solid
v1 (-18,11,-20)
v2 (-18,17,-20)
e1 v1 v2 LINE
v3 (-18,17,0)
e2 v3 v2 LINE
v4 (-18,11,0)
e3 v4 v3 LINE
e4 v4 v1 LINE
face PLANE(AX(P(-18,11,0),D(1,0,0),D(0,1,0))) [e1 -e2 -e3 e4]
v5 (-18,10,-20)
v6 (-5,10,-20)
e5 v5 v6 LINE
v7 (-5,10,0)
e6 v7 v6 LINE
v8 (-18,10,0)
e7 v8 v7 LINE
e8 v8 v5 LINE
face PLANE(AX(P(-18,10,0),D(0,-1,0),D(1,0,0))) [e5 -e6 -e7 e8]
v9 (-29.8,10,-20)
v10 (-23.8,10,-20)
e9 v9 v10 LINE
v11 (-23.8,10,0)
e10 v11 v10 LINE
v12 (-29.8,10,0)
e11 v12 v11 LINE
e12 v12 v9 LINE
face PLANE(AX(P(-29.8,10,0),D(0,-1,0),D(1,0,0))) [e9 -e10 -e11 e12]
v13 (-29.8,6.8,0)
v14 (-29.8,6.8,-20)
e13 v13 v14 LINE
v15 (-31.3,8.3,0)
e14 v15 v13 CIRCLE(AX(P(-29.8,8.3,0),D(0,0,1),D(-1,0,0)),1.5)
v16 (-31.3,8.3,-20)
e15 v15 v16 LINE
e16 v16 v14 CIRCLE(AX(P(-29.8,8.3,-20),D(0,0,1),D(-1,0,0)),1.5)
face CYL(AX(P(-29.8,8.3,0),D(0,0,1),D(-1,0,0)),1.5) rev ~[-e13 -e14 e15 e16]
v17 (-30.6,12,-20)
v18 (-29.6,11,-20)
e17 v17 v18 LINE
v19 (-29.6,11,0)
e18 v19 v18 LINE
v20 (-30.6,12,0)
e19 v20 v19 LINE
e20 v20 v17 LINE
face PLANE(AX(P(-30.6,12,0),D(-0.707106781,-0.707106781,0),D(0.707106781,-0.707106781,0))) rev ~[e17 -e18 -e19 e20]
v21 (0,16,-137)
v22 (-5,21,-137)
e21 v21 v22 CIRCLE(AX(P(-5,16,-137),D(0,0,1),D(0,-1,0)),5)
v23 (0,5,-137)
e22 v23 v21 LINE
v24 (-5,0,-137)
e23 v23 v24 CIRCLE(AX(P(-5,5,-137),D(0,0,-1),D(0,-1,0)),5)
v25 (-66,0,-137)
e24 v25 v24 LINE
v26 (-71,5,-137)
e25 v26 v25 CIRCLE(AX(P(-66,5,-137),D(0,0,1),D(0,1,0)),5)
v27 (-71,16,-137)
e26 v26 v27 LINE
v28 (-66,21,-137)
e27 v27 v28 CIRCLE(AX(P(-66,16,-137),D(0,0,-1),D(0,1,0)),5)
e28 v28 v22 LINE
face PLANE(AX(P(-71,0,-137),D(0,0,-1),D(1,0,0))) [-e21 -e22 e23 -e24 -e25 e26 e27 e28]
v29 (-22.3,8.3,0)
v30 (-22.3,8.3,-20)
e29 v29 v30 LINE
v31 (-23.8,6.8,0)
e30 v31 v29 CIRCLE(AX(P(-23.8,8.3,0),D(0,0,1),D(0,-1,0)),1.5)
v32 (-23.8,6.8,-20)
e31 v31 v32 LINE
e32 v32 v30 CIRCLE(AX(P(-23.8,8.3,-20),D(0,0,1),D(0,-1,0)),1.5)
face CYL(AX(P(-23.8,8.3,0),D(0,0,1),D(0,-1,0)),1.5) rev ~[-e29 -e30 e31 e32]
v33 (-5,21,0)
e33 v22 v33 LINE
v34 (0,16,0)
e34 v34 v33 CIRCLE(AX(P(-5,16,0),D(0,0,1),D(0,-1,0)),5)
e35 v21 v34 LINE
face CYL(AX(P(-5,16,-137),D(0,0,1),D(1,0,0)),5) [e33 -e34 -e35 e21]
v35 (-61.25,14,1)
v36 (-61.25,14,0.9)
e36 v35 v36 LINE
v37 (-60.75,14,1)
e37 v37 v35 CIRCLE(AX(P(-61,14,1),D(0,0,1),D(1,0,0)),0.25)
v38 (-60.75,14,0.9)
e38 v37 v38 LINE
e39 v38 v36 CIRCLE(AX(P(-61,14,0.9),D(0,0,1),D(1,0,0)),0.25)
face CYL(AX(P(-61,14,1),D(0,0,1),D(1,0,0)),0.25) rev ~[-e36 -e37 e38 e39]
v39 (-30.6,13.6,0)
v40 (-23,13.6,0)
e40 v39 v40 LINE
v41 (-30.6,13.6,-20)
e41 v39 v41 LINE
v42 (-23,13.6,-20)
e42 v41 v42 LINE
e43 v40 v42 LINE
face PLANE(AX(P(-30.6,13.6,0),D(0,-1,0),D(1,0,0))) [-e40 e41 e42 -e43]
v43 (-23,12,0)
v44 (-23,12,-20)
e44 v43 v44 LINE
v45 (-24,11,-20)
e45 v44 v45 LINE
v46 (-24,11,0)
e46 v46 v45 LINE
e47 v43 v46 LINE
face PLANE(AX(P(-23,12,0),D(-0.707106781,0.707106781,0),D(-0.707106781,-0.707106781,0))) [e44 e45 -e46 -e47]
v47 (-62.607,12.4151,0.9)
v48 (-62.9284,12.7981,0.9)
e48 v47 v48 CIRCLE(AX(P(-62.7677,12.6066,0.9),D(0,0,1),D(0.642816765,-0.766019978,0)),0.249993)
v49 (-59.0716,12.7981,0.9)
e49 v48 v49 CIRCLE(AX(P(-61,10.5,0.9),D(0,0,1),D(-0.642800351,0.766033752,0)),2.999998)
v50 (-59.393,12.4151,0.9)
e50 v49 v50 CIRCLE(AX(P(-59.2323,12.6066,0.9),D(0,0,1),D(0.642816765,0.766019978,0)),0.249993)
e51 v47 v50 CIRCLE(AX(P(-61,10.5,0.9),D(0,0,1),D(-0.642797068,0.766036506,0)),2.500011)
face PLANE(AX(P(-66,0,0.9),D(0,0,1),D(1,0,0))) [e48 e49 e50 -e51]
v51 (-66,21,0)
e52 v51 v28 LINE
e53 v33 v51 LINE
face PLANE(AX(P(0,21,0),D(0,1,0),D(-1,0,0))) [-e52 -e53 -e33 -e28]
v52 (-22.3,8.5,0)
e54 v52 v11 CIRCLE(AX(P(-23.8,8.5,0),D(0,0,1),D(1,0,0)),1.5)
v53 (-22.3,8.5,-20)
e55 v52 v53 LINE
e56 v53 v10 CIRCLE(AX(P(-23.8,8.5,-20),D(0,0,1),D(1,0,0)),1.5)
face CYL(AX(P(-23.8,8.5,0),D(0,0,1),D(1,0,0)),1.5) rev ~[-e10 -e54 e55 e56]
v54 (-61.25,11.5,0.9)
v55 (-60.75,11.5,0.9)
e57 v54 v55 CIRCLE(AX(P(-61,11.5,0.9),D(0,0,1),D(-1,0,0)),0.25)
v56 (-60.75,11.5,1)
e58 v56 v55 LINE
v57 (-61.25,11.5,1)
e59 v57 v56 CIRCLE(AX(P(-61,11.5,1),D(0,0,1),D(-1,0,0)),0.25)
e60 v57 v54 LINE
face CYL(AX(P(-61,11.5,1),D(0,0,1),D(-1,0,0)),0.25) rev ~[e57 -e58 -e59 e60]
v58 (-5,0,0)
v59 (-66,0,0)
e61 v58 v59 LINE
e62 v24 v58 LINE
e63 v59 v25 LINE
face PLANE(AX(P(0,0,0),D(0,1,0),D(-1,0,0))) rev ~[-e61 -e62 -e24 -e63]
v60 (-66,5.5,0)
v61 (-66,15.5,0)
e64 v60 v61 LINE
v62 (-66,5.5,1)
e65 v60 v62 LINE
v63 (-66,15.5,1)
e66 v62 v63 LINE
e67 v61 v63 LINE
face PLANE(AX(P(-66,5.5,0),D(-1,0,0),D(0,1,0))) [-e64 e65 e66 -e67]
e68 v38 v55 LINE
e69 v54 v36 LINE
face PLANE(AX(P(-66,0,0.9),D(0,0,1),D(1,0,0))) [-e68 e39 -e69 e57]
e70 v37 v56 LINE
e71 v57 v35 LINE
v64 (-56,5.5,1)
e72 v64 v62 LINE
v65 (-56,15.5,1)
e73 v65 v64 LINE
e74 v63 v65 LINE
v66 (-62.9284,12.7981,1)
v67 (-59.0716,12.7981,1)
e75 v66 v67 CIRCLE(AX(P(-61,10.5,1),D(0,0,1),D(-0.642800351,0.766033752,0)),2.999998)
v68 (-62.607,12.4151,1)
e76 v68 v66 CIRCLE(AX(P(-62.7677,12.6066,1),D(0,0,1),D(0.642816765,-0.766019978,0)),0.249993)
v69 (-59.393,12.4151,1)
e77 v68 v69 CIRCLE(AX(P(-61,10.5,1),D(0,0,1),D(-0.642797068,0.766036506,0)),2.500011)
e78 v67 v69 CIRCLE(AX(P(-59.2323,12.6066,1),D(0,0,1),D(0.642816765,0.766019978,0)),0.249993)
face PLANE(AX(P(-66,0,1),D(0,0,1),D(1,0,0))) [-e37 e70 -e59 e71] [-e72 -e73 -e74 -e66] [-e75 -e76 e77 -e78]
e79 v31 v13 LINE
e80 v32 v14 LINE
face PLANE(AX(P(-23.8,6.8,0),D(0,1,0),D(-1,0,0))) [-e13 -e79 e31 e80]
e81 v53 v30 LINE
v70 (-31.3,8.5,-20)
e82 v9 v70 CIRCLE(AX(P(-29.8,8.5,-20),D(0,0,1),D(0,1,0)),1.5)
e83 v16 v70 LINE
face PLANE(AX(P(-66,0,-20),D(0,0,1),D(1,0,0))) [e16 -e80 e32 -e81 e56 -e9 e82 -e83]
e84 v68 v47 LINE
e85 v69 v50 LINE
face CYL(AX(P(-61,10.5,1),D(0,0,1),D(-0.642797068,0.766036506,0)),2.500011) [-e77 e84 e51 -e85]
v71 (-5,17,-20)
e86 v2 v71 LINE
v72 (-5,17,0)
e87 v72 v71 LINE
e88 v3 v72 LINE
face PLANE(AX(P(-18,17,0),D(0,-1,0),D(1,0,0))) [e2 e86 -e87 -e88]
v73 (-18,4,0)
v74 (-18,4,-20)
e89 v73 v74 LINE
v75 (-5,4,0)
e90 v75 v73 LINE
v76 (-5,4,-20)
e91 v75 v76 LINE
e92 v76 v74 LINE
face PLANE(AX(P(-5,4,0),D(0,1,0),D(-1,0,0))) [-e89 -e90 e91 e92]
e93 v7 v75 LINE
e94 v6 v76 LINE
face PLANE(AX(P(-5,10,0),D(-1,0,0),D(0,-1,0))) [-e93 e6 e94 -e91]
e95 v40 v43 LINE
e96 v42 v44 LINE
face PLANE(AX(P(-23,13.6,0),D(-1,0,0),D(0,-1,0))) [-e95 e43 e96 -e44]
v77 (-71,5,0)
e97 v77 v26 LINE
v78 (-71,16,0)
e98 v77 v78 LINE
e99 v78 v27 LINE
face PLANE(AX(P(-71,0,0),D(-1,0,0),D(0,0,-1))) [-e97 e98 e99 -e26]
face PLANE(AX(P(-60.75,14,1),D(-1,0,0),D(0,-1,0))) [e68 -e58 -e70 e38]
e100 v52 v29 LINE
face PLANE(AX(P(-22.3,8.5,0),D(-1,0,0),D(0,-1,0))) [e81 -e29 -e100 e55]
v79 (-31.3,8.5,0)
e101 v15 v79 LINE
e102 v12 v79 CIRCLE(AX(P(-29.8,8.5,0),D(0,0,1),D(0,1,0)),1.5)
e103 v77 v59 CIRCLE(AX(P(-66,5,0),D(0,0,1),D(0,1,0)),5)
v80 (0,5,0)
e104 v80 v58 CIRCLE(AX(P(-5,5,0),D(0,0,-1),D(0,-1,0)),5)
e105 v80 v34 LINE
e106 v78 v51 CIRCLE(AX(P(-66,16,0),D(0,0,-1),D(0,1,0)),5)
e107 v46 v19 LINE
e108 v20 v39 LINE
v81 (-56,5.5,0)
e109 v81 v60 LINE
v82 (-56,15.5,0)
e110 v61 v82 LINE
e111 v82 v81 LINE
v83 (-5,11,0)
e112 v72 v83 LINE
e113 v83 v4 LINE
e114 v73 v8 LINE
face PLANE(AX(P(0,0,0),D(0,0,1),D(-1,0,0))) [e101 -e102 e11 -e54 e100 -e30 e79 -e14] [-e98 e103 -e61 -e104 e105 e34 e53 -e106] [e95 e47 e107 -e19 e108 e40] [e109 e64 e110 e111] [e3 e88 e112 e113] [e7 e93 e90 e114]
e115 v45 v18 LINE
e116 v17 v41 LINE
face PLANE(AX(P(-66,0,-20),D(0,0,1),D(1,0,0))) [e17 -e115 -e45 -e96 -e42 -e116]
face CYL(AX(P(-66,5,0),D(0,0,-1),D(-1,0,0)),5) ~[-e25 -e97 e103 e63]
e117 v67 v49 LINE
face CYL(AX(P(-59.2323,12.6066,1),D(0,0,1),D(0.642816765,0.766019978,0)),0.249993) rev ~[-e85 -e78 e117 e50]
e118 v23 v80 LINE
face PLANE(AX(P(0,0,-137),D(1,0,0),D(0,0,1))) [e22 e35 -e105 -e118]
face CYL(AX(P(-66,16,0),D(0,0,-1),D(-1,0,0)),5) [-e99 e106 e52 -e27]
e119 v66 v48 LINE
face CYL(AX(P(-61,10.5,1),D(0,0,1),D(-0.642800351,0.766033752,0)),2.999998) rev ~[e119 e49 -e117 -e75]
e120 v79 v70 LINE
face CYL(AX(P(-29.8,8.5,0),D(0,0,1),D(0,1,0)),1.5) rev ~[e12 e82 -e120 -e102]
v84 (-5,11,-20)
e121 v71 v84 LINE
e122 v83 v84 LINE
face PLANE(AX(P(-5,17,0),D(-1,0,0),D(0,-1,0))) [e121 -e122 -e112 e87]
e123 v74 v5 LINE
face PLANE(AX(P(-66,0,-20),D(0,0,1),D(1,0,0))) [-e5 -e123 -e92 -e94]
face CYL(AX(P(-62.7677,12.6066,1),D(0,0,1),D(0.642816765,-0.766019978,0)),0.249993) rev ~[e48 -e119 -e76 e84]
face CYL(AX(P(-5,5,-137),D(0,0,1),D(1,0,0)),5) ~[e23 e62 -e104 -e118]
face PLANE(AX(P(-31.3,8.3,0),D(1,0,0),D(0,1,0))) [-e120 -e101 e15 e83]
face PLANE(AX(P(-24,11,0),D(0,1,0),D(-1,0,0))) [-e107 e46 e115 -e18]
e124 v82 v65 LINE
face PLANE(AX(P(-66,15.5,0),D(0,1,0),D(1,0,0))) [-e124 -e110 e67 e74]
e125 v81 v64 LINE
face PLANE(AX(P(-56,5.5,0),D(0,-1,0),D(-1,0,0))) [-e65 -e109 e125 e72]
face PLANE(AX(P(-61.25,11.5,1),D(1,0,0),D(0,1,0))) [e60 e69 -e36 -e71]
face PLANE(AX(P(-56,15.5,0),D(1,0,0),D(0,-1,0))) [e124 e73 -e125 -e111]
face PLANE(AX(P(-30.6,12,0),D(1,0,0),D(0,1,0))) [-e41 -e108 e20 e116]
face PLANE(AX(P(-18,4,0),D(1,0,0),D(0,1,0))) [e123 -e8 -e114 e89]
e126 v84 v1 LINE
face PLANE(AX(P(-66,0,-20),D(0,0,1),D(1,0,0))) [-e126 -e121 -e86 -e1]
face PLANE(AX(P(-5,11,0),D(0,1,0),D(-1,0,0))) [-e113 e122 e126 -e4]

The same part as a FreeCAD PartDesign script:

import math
import FreeCAD as App
import Part
import Sketcher
Q = App.Units.Quantity


def edges_at(feature, points):
    """Names of the edges that pass closest to the given points."""
    edges = feature.Shape.Edges
    near = lambda p: min(range(len(edges)), key=lambda i: edges[i].distToShape(Part.Vertex(*p))[0])
    return sorted({f"Edge{near(p) + 1}" for p in points})


def add_polygon(sketch, points):
    """Adds a closed chain of lines whose ends are joined by coincident constraints."""
    first, n = sketch.GeometryCount, len(points)
    for a, b in zip(points, points[1:] + points[:1]):
        sketch.addGeometry(Part.LineSegment(App.Vector(*a, 0), App.Vector(*b, 0)), False)
    for i in range(n):
        sketch.addConstraint(Sketcher.Constraint("Coincident", first + i, 2, first + (i + 1) % n, 1))

doc = App.newDocument("Part")
body = doc.addObject("PartDesign::Body", "Body")

sketch1 = body.newObject("Sketcher::SketchObject", "Sketch")
sketch1.AttachmentSupport = (doc.getObject("XZ_Plane"), [""])
sketch1.MapMode = "FlatFace"
add_polygon(sketch1, [(-71, 0), (0, 0), (0, -137), (-71, -137)])
sketch1.addConstraint([
    Sketcher.Constraint("Horizontal", 0),
    Sketcher.Constraint("Vertical", 1),
    Sketcher.Constraint("Horizontal", 2),
    Sketcher.Constraint("Vertical", 3),
    Sketcher.Constraint("Coincident", 0, 2, -1, 1),
    Sketcher.Constraint("DistanceX", 0, 1, 0, 2, Q("71 mm")),
    Sketcher.Constraint("DistanceY", 1, 2, 1, 1, Q("137 mm")),
])
pad1 = body.newObject("PartDesign::Pad", "Pad")
pad1.Profile = sketch1
pad1.Length = 21
pad1.Reversed = True
doc.recompute()

fillet = body.newObject("PartDesign::Fillet", "Fillet")
fillet.Base = (pad1, edges_at(pad1, [
    (0, 21, -68.5),
    (0, 0, -68.5),
    (-71, 21, -68.5),
    (-71, 0, -68.5),
]))
fillet.Radius = 5

sketch2 = body.newObject("Sketcher::SketchObject", "Sketch001")
sketch2.AttachmentSupport = (doc.getObject("XY_Plane"), [""])
sketch2.MapMode = "FlatFace"
add_polygon(sketch2, [(-5, 17), (-18, 17), (-18, 11), (-5, 11)])
add_polygon(sketch2, [(-5, 10), (-18, 10), (-18, 4), (-5, 4)])
add_polygon(sketch2, [(-23, 13.6), (-30.6, 13.6), (-30.6, 12), (-29.6, 11), (-24, 11), (-23, 12)])
sketch2.addGeometry(Part.LineSegment(App.Vector(-23.8, 10, 0), App.Vector(-29.8, 10, 0)), False)
sketch2.addGeometry(Part.ArcOfCircle(Part.Circle(App.Vector(-29.8, 8.5, 0), App.Vector(0, 0, 1), 1.5), math.radians(90), math.radians(180)), False)
sketch2.addGeometry(Part.LineSegment(App.Vector(-31.3, 8.5, 0), App.Vector(-31.3, 8.3, 0)), False)
sketch2.addGeometry(Part.ArcOfCircle(Part.Circle(App.Vector(-29.8, 8.3, 0), App.Vector(0, 0, 1), 1.5), math.radians(180), math.radians(270)), False)
sketch2.addGeometry(Part.LineSegment(App.Vector(-29.8, 6.8, 0), App.Vector(-23.8, 6.8, 0)), False)
sketch2.addGeometry(Part.ArcOfCircle(Part.Circle(App.Vector(-23.8, 8.3, 0), App.Vector(0, 0, 1), 1.5), math.radians(-90), math.radians(0)), False)
sketch2.addGeometry(Part.LineSegment(App.Vector(-22.3, 8.3, 0), App.Vector(-22.3, 8.5, 0)), False)
sketch2.addGeometry(Part.ArcOfCircle(Part.Circle(App.Vector(-23.8, 8.5, 0), App.Vector(0, 0, 1), 1.5), math.radians(0), math.radians(90)), False)
sketch2.addConstraint([
    Sketcher.Constraint("Tangent", 14, 2, 15, 1),
    Sketcher.Constraint("Tangent", 15, 2, 16, 1),
    Sketcher.Constraint("Tangent", 16, 2, 17, 1),
    Sketcher.Constraint("Tangent", 17, 2, 18, 1),
    Sketcher.Constraint("Tangent", 18, 2, 19, 1),
    Sketcher.Constraint("Tangent", 19, 2, 20, 1),
    Sketcher.Constraint("Tangent", 20, 2, 21, 1),
    Sketcher.Constraint("Tangent", 21, 2, 14, 1),
    Sketcher.Constraint("Horizontal", 0),
    Sketcher.Constraint("Vertical", 1),
    Sketcher.Constraint("Horizontal", 2),
    Sketcher.Constraint("Vertical", 3),
    Sketcher.Constraint("Horizontal", 4),
    Sketcher.Constraint("Vertical", 5),
    Sketcher.Constraint("Horizontal", 6),
    Sketcher.Constraint("Vertical", 7),
    Sketcher.Constraint("Horizontal", 8),
    Sketcher.Constraint("Vertical", 9),
    Sketcher.Constraint("Horizontal", 11),
    Sketcher.Constraint("Vertical", 13),
    Sketcher.Constraint("Horizontal", 14),
    Sketcher.Constraint("Vertical", 16),
    Sketcher.Constraint("Horizontal", 18),
    Sketcher.Constraint("Vertical", 20),
    Sketcher.Constraint("Equal", 15, 17),
    Sketcher.Constraint("Equal", 17, 19),
    Sketcher.Constraint("Equal", 19, 21),
    Sketcher.Constraint("Perpendicular", 10, 12),
    Sketcher.Constraint("Horizontal", 2, 2, 10, 2),
    Sketcher.Constraint("Horizontal", 9, 2, 12, 2),
    Sketcher.Constraint("Horizontal", 7, 2, 14, 2),
    Sketcher.Constraint("Vertical", 1, 2, 4, 2),
    Sketcher.Constraint("Vertical", 3, 2, 6, 2),
    Sketcher.Constraint("Equal", 18, 1),
    Sketcher.Constraint("Equal", 3, 5),
    Sketcher.Constraint("Equal", 10, 12),
    Sketcher.Constraint("Radius", 15, Q("1.5 mm")),
    Sketcher.Constraint("DistanceX", 0, 2, 0, 1, Q("13 mm")),
    Sketcher.Constraint("DistanceX", 14, 2, 14, 1, Q("6 mm")),
    Sketcher.Constraint("DistanceX", 8, 2, 8, 1, Q("7.6 mm")),
    Sketcher.Constraint("DistanceX", 2, 2, -1, 1, Q("5 mm")),
    Sketcher.Constraint("DistanceY", -1, 1, 4, 2, Q("10 mm")),
    Sketcher.Constraint("DistanceY", 4, 2, 1, 2, Q("1 mm")),
    Sketcher.Constraint("DistanceX", 9, 2, 10, 2, Q("1 mm")),
    Sketcher.Constraint("DistanceX", 11, 2, 1, 2, Q("6 mm")),
    Sketcher.Constraint("DistanceY", 1, 2, 8, 2, Q("2.6 mm")),
    Sketcher.Constraint("DistanceY", 17, 2, 14, 2, Q("3.2 mm")),
    Sketcher.Constraint("DistanceX", 15, 3, -1, 1, Q("29.8 mm")),
])
pocket1 = body.newObject("PartDesign::Pocket", "Pocket")
pocket1.Profile = sketch2
pocket1.Length = 20

sketch3 = body.newObject("Sketcher::SketchObject", "Sketch002")
sketch3.AttachmentSupport = (doc.getObject("XY_Plane"), [""])
sketch3.MapMode = "FlatFace"
add_polygon(sketch3, [(-56, 15.5), (-66, 15.5), (-66, 5.5), (-56, 5.5)])
sketch3.addConstraint([
    Sketcher.Constraint("Horizontal", 0),
    Sketcher.Constraint("Vertical", 1),
    Sketcher.Constraint("Horizontal", 2),
    Sketcher.Constraint("Vertical", 3),
    Sketcher.Constraint("Equal", 2, 1),
    Sketcher.Constraint("DistanceX", 0, 2, 0, 1, Q("10 mm")),
    Sketcher.Constraint("DistanceX", 0, 2, -1, 1, Q("66 mm")),
    Sketcher.Constraint("DistanceY", -1, 1, 0, 2, Q("15.5 mm")),
])
pad2 = body.newObject("PartDesign::Pad", "Pad001")
pad2.Profile = sketch3
pad2.Length = 1

sketch4 = body.newObject("Sketcher::SketchObject", "Sketch003")
sketch4.AttachmentSupport = (doc.getObject("XY_Plane"), [""])
sketch4.MapMode = "FlatFace"
sketch4.AttachmentOffset = App.Placement(App.Vector(0, 0, 1), App.Rotation())
sketch4.addGeometry([
    Part.ArcOfCircle(Part.Circle(App.Vector(-62.7677, 12.6066, 0), App.Vector(0, 0, 1), 0.249993), math.radians(-49.997819), math.radians(130.002181)),
    Part.ArcOfCircle(Part.Circle(App.Vector(-61, 10.5, 0), App.Vector(0, 0, 1), 2.999998), math.radians(130.000953), math.radians(409.999047)),
    Part.ArcOfCircle(Part.Circle(App.Vector(-59.2323, 12.6066, 0), App.Vector(0, 0, 1), 0.249993), math.radians(49.997819), math.radians(229.997819)),
    Part.ArcOfCircle(Part.Circle(App.Vector(-61, 10.5, 0), App.Vector(0, 0, 1), 2.500011), math.radians(130.000707), math.radians(409.999293)),
    Part.LineSegment(App.Vector(-60.75, 11.5, 0), App.Vector(-60.75, 14, 0)),
    Part.ArcOfCircle(Part.Circle(App.Vector(-61, 14, 0), App.Vector(0, 0, 1), 0.25), math.radians(0), math.radians(180)),
    Part.LineSegment(App.Vector(-61.25, 14, 0), App.Vector(-61.25, 11.5, 0)),
    Part.ArcOfCircle(Part.Circle(App.Vector(-61, 11.5, 0), App.Vector(0, 0, 1), 0.25), math.radians(180), math.radians(360)),
], False)
sketch4.addConstraint([
    Sketcher.Constraint("Tangent", 0, 2, 1, 1),
    Sketcher.Constraint("Tangent", 1, 2, 2, 1),
    Sketcher.Constraint("Tangent", 2, 2, 3, 2),
    Sketcher.Constraint("Tangent", 3, 1, 0, 1),
    Sketcher.Constraint("Tangent", 4, 2, 5, 1),
    Sketcher.Constraint("Tangent", 5, 2, 6, 1),
    Sketcher.Constraint("Tangent", 6, 2, 7, 1),
    Sketcher.Constraint("Tangent", 7, 2, 4, 1),
    Sketcher.Constraint("Vertical", 4),
    Sketcher.Constraint("Vertical", 6),
    Sketcher.Constraint("Coincident", 3, 3, 1, 3),
    Sketcher.Constraint("Equal", 2, 5),
    Sketcher.Constraint("Horizontal", 0, 3, 2, 3),
    Sketcher.Constraint("Vertical", 3, 3, 5, 3),
    Sketcher.Constraint("Radius", 1, Q("3 mm")),
    Sketcher.Constraint("Radius", 3, Q("2.5 mm")),
    Sketcher.Constraint("DistanceY", 4, 1, 4, 2, Q("2.5 mm")),
    Sketcher.Constraint("DistanceY", 1, 3, 7, 3, Q("1 mm")),
    Sketcher.Constraint("DistanceX", 1, 3, -1, 1, Q("61 mm")),
    Sketcher.Constraint("DistanceY", -1, 1, 5, 3, Q("14 mm")),
    Sketcher.Constraint("DistanceY", -1, 1, 0, 2, Q("12.798 mm")),
])
pocket2 = body.newObject("PartDesign::Pocket", "Pocket001")
pocket2.Profile = sketch4
pocket2.Length = 0.1

doc.recompute()
